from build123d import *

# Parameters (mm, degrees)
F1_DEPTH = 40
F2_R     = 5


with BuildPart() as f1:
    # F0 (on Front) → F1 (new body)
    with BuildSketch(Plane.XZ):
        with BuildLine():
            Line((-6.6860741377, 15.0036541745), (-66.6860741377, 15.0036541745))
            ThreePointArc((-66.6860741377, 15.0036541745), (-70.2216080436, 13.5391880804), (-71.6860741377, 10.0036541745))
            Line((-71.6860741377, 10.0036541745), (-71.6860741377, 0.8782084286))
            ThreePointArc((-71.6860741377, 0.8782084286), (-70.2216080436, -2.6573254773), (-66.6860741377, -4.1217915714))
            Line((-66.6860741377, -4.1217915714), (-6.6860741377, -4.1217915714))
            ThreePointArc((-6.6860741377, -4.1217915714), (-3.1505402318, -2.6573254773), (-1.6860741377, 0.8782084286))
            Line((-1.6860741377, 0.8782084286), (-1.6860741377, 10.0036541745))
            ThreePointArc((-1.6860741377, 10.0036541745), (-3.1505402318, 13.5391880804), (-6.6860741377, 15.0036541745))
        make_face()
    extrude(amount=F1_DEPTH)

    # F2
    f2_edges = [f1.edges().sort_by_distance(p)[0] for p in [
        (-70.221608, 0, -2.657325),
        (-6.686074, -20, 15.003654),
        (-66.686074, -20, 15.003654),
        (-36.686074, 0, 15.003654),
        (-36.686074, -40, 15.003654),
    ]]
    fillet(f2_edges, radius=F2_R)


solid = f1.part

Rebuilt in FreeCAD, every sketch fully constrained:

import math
import FreeCAD as App
import Part
import Sketcher
Q = App.Units.Quantity


def edges_at(feature, points):
    """Names of the edges that pass closest to the given points."""
    edges = feature.Shape.Edges
    near = lambda p: min(range(len(edges)), key=lambda i: edges[i].distToShape(Part.Vertex(*p))[0])
    return sorted({f"Edge{near(p) + 1}" for p in points})

doc = App.newDocument("Part")
body = doc.addObject("PartDesign::Body", "Body")

# Sketch on XZ plane
sketch1 = body.newObject("Sketcher::SketchObject", "Sketch")
sketch1.AttachmentSupport = (doc.getObject("XZ_Plane"), [""])
sketch1.MapMode = "FlatFace"
sketch1.addGeometry(Part.LineSegment(App.Vector(-7, 15, 0), App.Vector(-67, 15, 0)), False)
sketch1.addGeometry(Part.ArcOfCircle(Part.Circle(App.Vector(-67, 10, 0), App.Vector(0, 0, 1), 5), math.radians(90), math.radians(180)), False)
sketch1.addGeometry(Part.LineSegment(App.Vector(-72, 10, 0), App.Vector(-72, 1, 0)), False)
sketch1.addGeometry(Part.ArcOfCircle(Part.Circle(App.Vector(-67, 1, 0), App.Vector(0, 0, 1), 5), math.radians(180), math.radians(270)), False)
sketch1.addGeometry(Part.LineSegment(App.Vector(-67, -4, 0), App.Vector(-7, -4, 0)), False)
sketch1.addGeometry(Part.ArcOfCircle(Part.Circle(App.Vector(-7, 1, 0), App.Vector(0, 0, 1), 5), math.radians(-90), math.radians(0)), False)
sketch1.addGeometry(Part.LineSegment(App.Vector(-2, 1, 0), App.Vector(-2, 10, 0)), False)
sketch1.addGeometry(Part.ArcOfCircle(Part.Circle(App.Vector(-7, 10, 0), App.Vector(0, 0, 1), 5), math.radians(0), math.radians(90)), False)
sketch1.addConstraint(Sketcher.Constraint("Tangent", 0, 2, 1, 1))
sketch1.addConstraint(Sketcher.Constraint("Tangent", 1, 2, 2, 1))
sketch1.addConstraint(Sketcher.Constraint("Tangent", 2, 2, 3, 1))
sketch1.addConstraint(Sketcher.Constraint("Tangent", 3, 2, 4, 1))
sketch1.addConstraint(Sketcher.Constraint("Tangent", 4, 2, 5, 1))
sketch1.addConstraint(Sketcher.Constraint("Tangent", 5, 2, 6, 1))
sketch1.addConstraint(Sketcher.Constraint("Tangent", 6, 2, 7, 1))
sketch1.addConstraint(Sketcher.Constraint("Tangent", 7, 2, 0, 1))
sketch1.addConstraint(Sketcher.Constraint("Horizontal", 0))
sketch1.addConstraint(Sketcher.Constraint("Vertical", 2))
sketch1.addConstraint(Sketcher.Constraint("Horizontal", 4))
sketch1.addConstraint(Sketcher.Constraint("Vertical", 6))
sketch1.addConstraint(Sketcher.Constraint("Equal", 1, 3))
sketch1.addConstraint(Sketcher.Constraint("Equal", 3, 5))
sketch1.addConstraint(Sketcher.Constraint("Equal", 5, 7))
sketch1.addConstraint(Sketcher.Constraint("Radius", 1, Q("5 mm")))
sketch1.addConstraint(Sketcher.Constraint("DistanceX", 0, 2, 0, 1, Q("60 mm")))
sketch1.addConstraint(Sketcher.Constraint("DistanceY", 2, 2, 2, 1, Q("9.125446 mm")))
sketch1.addConstraint(Sketcher.Constraint("DistanceY", -1, 1, 3, 3, Q("0.878208 mm")))
sketch1.addConstraint(Sketcher.Constraint("DistanceX", 1, 3, -1, 1, Q("66.686074 mm")))
pad1 = body.newObject("PartDesign::Pad", "Pad")
pad1.Profile = sketch1
pad1.Length = 40
doc.recompute()

fillet = body.newObject("PartDesign::Fillet", "Fillet")
fillet.Base = (pad1, edges_at(pad1, [
    (-70.222, 0, -2.657),
    (-6.686, -20, 15.004),
    (-66.686, -20, 15.004),
    (-36.686, 0, 15.004),
    (-36.686, -40, 15.004),
]))
fillet.Radius = 5

doc.recompute()
